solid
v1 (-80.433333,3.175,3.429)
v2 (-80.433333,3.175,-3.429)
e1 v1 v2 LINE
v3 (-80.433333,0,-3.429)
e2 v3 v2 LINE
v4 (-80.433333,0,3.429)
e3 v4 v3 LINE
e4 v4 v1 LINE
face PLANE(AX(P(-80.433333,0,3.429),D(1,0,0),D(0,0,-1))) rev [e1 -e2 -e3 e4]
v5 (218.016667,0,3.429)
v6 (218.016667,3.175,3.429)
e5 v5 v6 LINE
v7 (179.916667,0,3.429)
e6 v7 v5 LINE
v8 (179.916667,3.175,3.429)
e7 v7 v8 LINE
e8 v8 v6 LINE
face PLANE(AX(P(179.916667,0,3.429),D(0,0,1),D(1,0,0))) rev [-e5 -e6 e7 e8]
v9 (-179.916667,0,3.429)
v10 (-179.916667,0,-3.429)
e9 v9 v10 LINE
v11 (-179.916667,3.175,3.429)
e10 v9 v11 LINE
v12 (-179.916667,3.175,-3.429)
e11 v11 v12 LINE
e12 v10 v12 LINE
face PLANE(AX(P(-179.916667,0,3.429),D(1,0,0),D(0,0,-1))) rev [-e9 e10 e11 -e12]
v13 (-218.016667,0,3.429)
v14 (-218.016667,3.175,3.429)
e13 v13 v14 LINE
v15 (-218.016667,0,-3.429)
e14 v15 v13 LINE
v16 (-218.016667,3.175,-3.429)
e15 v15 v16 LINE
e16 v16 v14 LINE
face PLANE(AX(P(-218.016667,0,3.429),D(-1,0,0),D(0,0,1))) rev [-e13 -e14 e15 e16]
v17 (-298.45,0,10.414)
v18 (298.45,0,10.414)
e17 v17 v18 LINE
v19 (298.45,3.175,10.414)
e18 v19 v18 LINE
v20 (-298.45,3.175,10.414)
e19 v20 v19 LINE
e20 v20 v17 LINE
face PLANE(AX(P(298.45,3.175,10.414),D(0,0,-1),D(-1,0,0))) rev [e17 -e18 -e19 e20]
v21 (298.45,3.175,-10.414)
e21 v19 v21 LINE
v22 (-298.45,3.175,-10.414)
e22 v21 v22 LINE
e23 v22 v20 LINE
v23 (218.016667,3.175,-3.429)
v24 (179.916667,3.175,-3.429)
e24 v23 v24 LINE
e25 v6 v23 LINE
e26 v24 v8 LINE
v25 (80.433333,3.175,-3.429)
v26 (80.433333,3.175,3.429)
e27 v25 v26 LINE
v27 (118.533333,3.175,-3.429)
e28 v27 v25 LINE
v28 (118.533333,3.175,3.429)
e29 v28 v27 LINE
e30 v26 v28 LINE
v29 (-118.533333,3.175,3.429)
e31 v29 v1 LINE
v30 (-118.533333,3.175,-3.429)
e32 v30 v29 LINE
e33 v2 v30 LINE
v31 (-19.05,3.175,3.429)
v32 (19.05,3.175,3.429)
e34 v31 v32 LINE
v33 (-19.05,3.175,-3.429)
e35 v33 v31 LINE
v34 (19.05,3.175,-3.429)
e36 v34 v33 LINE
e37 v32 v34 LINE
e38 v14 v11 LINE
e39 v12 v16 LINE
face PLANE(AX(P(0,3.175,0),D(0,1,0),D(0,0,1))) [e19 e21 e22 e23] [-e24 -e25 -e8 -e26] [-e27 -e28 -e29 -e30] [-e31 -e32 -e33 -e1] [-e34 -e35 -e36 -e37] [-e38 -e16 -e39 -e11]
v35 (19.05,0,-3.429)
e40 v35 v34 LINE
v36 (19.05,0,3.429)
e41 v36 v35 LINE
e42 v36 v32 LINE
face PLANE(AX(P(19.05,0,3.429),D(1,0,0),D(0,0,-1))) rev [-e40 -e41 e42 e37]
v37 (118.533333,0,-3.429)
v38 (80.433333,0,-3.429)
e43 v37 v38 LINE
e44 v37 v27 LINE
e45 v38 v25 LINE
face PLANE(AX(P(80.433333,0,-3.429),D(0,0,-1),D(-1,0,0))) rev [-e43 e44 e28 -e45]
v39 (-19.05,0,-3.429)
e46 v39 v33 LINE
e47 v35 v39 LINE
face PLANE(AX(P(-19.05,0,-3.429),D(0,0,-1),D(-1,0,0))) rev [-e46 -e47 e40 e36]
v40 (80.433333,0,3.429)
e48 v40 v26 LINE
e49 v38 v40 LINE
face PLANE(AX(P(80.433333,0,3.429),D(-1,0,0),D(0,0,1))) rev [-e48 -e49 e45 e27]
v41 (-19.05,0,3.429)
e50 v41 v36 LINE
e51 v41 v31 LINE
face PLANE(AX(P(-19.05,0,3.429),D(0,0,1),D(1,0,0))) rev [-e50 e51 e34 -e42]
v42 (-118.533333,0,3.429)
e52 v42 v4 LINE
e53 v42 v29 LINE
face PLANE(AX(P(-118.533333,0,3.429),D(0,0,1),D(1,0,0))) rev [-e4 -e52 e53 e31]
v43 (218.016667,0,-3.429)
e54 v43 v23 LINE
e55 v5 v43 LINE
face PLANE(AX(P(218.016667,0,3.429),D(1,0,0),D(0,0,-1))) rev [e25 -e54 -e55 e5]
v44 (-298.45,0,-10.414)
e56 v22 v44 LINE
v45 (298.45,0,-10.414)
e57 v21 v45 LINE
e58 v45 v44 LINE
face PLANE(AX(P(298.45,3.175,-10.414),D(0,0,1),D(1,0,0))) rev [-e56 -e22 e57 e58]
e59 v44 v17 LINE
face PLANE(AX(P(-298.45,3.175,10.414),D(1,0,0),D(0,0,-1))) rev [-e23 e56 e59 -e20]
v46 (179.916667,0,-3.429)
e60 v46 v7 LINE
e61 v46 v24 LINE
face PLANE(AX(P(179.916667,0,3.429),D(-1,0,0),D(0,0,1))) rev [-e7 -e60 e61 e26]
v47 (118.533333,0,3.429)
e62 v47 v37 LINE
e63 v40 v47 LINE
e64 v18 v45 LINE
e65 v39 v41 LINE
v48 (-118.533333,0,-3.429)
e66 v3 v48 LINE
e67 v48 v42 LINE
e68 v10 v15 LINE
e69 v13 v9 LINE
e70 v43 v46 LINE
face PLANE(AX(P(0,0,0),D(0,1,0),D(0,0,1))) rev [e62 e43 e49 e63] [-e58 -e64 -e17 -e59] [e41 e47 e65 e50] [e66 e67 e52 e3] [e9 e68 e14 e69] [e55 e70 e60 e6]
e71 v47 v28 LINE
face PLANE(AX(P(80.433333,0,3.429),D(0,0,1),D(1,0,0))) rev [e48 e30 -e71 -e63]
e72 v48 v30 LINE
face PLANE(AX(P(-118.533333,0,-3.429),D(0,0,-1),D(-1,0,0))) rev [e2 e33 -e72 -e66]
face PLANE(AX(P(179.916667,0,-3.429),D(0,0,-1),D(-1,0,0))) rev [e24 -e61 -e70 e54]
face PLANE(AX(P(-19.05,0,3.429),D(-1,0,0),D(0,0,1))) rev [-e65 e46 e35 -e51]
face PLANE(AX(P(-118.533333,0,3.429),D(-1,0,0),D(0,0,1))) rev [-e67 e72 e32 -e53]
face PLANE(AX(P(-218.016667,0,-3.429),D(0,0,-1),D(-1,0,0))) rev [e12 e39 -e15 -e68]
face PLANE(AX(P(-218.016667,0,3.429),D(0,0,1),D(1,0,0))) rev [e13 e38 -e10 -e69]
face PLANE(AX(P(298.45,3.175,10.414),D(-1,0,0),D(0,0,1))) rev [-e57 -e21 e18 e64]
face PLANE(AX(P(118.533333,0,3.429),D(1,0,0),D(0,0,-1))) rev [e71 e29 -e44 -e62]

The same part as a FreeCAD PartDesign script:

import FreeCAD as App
import Part
import Sketcher
from FreeCAD import Vector
Q = App.Units.Quantity

doc = App.newDocument("Part")
params = doc.addObject("Spreadsheet::Sheet", "Params")
for row, (alias, value) in enumerate([
    ("sketch1_width", "23.5 in"),
    ("sketch1_height", "0.82 in"),
    ("pad1_length", "0.125 in"),
    ("sketch2_width", "1.5 in"),
    ("sketch2_height", "0.27 in"),
], start=1):
    params.set(f"A{row}", alias)
    params.set(f"B{row}", "=" + value)
    params.setAlias(f"B{row}", alias)

body = doc.addObject("PartDesign::Body", "Body")

# Sketch on XZ plane
sketch1 = body.newObject("Sketcher::SketchObject", "Sketch")
sketch1.AttachmentSupport = (doc.getObject("XZ_Plane"), [""])
sketch1.MapMode = "FlatFace"
sketch1.addGeometry(Part.LineSegment(Vector(-298, -10, 0), Vector(-298, 10, 0)), False)
sketch1.addGeometry(Part.LineSegment(Vector(-298, 10, 0), Vector(298, 10, 0)), False)
sketch1.addGeometry(Part.LineSegment(Vector(298, 10, 0), Vector(298, -10, 0)), False)
sketch1.addGeometry(Part.LineSegment(Vector(298, -10, 0), Vector(-298, -10, 0)), False)
sketch1.addConstraint(Sketcher.Constraint("Coincident", 0, 2, 1, 1))
sketch1.addConstraint(Sketcher.Constraint("Coincident", 1, 2, 2, 1))
sketch1.addConstraint(Sketcher.Constraint("Coincident", 2, 2, 3, 1))
sketch1.addConstraint(Sketcher.Constraint("Coincident", 3, 2, 0, 1))
sketch1.addConstraint(Sketcher.Constraint("Vertical", 0))
sketch1.addConstraint(Sketcher.Constraint("Horizontal", 1))
sketch1.addConstraint(Sketcher.Constraint("Vertical", 2))
sketch1.addConstraint(Sketcher.Constraint("Horizontal", 3))
sketch1.addConstraint(Sketcher.Constraint("Symmetric", 0, 2, 2, 2, -1, 1))
sketch1.addConstraint(Sketcher.Constraint("DistanceX", 1, 1, 1, 2, Q("23.5 in")))
sketch1.addConstraint(Sketcher.Constraint("DistanceY", 0, 1, 0, 2, Q("0.82 in")))
sketch1.setExpression("Constraints[9]", "Params.sketch1_width")
sketch1.setExpression("Constraints[10]", "Params.sketch1_height")
pad1 = body.newObject("PartDesign::Pad", "Pad")
pad1.Profile = sketch1
pad1.setExpression("Length", "Params.pad1_length")
pad1.Reversed = True

# Sketch on XZ plane
sketch2 = body.newObject("Sketcher::SketchObject", "Sketch001")
sketch2.AttachmentSupport = (doc.getObject("XZ_Plane"), [""])
sketch2.MapMode = "FlatFace"
sketch2.AttachmentOffset = App.Placement(Vector(0, 0, -0.125 * 25.4), App.Rotation())
sketch2.addGeometry(Part.LineSegment(Vector(-218, -3, 0), Vector(-218, 3, 0)), False)
sketch2.addGeometry(Part.LineSegment(Vector(-218, 3, 0), Vector(-180, 3, 0)), False)
sketch2.addGeometry(Part.LineSegment(Vector(-180, 3, 0), Vector(-180, -3, 0)), False)
sketch2.addGeometry(Part.LineSegment(Vector(-180, -3, 0), Vector(-218, -3, 0)), False)
sketch2.addGeometry(Part.LineSegment(Vector(-119, -3, 0), Vector(-119, 3, 0)), False)
sketch2.addGeometry(Part.LineSegment(Vector(-119, 3, 0), Vector(-80, 3, 0)), False)
sketch2.addGeometry(Part.LineSegment(Vector(-80, 3, 0), Vector(-80, -3, 0)), False)
sketch2.addGeometry(Part.LineSegment(Vector(-80, -3, 0), Vector(-119, -3, 0)), False)
sketch2.addGeometry(Part.LineSegment(Vector(-19, -3, 0), Vector(-19, 3, 0)), False)
sketch2.addGeometry(Part.LineSegment(Vector(-19, 3, 0), Vector(19, 3, 0)), False)
sketch2.addGeometry(Part.LineSegment(Vector(19, 3, 0), Vector(19, -3, 0)), False)
sketch2.addGeometry(Part.LineSegment(Vector(19, -3, 0), Vector(-19, -3, 0)), False)
sketch2.addGeometry(Part.LineSegment(Vector(80, -3, 0), Vector(80, 3, 0)), False)
sketch2.addGeometry(Part.LineSegment(Vector(80, 3, 0), Vector(119, 3, 0)), False)
sketch2.addGeometry(Part.LineSegment(Vector(119, 3, 0), Vector(119, -3, 0)), False)
sketch2.addGeometry(Part.LineSegment(Vector(119, -3, 0), Vector(80, -3, 0)), False)
sketch2.addGeometry(Part.LineSegment(Vector(180, -3, 0), Vector(180, 3, 0)), False)
sketch2.addGeometry(Part.LineSegment(Vector(180, 3, 0), Vector(218, 3, 0)), False)
sketch2.addGeometry(Part.LineSegment(Vector(218, 3, 0), Vector(218, -3, 0)), False)
sketch2.addGeometry(Part.LineSegment(Vector(218, -3, 0), Vector(180, -3, 0)), False)
sketch2.addConstraint(Sketcher.Constraint("Coincident", 0, 2, 1, 1))
sketch2.addConstraint(Sketcher.Constraint("Coincident", 1, 2, 2, 1))
sketch2.addConstraint(Sketcher.Constraint("Coincident", 2, 2, 3, 1))
sketch2.addConstraint(Sketcher.Constraint("Coincident", 3, 2, 0, 1))
sketch2.addConstraint(Sketcher.Constraint("Coincident", 4, 2, 5, 1))
sketch2.addConstraint(Sketcher.Constraint("Coincident", 5, 2, 6, 1))
sketch2.addConstraint(Sketcher.Constraint("Coincident", 6, 2, 7, 1))
sketch2.addConstraint(Sketcher.Constraint("Coincident", 7, 2, 4, 1))
sketch2.addConstraint(Sketcher.Constraint("Coincident", 8, 2, 9, 1))
sketch2.addConstraint(Sketcher.Constraint("Coincident", 9, 2, 10, 1))
sketch2.addConstraint(Sketcher.Constraint("Coincident", 10, 2, 11, 1))
sketch2.addConstraint(Sketcher.Constraint("Coincident", 11, 2, 8, 1))
sketch2.addConstraint(Sketcher.Constraint("Coincident", 12, 2, 13, 1))
sketch2.addConstraint(Sketcher.Constraint("Coincident", 13, 2, 14, 1))
sketch2.addConstraint(Sketcher.Constraint("Coincident", 14, 2, 15, 1))
sketch2.addConstraint(Sketcher.Constraint("Coincident", 15, 2, 12, 1))
sketch2.addConstraint(Sketcher.Constraint("Coincident", 16, 2, 17, 1))
sketch2.addConstraint(Sketcher.Constraint("Coincident", 17, 2, 18, 1))
sketch2.addConstraint(Sketcher.Constraint("Coincident", 18, 2, 19, 1))
sketch2.addConstraint(Sketcher.Constraint("Coincident", 19, 2, 16, 1))
sketch2.addConstraint(Sketcher.Constraint("Vertical", 0))
sketch2.addConstraint(Sketcher.Constraint("Horizontal", 1))
sketch2.addConstraint(Sketcher.Constraint("Vertical", 2))
sketch2.addConstraint(Sketcher.Constraint("Horizontal", 3))
sketch2.addConstraint(Sketcher.Constraint("Vertical", 4))
sketch2.addConstraint(Sketcher.Constraint("Horizontal", 5))
sketch2.addConstraint(Sketcher.Constraint("Vertical", 6))
sketch2.addConstraint(Sketcher.Constraint("Horizontal", 7))
sketch2.addConstraint(Sketcher.Constraint("Vertical", 8))
sketch2.addConstraint(Sketcher.Constraint("Horizontal", 9))
sketch2.addConstraint(Sketcher.Constraint("Vertical", 10))
sketch2.addConstraint(Sketcher.Constraint("Horizontal", 11))
sketch2.addConstraint(Sketcher.Constraint("Vertical", 12))
sketch2.addConstraint(Sketcher.Constraint("Horizontal", 13))
sketch2.addConstraint(Sketcher.Constraint("Vertical", 14))
sketch2.addConstraint(Sketcher.Constraint("Horizontal", 15))
sketch2.addConstraint(Sketcher.Constraint("Vertical", 16))
sketch2.addConstraint(Sketcher.Constraint("Horizontal", 17))
sketch2.addConstraint(Sketcher.Constraint("Vertical", 18))
sketch2.addConstraint(Sketcher.Constraint("Horizontal", 19))
sketch2.addConstraint(Sketcher.Constraint("Symmetric", 8, 2, 10, 2, -1, 1))
sketch2.addConstraint(Sketcher.Constraint("Symmetric", 6, 2, 12, 2, -1, 1))
sketch2.addConstraint(Sketcher.Constraint("Symmetric", 4, 2, 14, 2, -1, 1))
sketch2.addConstraint(Sketcher.Constraint("Symmetric", 2, 2, 16, 2, -1, 1))
sketch2.addConstraint(Sketcher.Constraint("Symmetric", 0, 2, 18, 2, -1, 1))
sketch2.addConstraint(Sketcher.Constraint("Horizontal", 1, 2, 4, 2))
sketch2.addConstraint(Sketcher.Constraint("Horizontal", 3, 2, 6, 2))
sketch2.addConstraint(Sketcher.Constraint("Horizontal", 5, 2, 8, 2))
sketch2.addConstraint(Sketcher.Constraint("Horizontal", 7, 2, 10, 2))
sketch2.addConstraint(Sketcher.Constraint("Equal", 3, 5))
sketch2.addConstraint(Sketcher.Constraint("Equal", 7, 9))
sketch2.addConstraint(Sketcher.Constraint("DistanceX", 1, 1, 1, 2, Q("1.5 in")))
sketch2.addConstraint(Sketcher.Constraint("DistanceY", 0, 1, 0, 2, Q("0.27 in")))
sketch2.addConstraint(Sketcher.Constraint("DistanceX", 0, 2, -1, 1, Q("218.016667 mm")))
sketch2.addConstraint(Sketcher.Constraint("DistanceX", 4, 2, -1, 1, Q("118.533333 mm")))
sketch2.setExpression("Constraints[51]", "Params.sketch2_width")
sketch2.setExpression("Constraints[52]", "Params.sketch2_height")
pocket1 = body.newObject("PartDesign::Pocket", "Pocket")
pocket1.Profile = sketch2
pocket1.Type = "ThroughAll"
pocket1.Reversed = True

doc.recompute()
